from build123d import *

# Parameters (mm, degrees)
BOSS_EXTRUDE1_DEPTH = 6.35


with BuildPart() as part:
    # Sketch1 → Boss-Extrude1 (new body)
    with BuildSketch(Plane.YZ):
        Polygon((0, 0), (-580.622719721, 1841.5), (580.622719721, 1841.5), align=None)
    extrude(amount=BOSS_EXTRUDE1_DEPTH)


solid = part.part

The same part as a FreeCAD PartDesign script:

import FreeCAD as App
import Part
import Sketcher

V = App.Vector
Q = App.Units.Quantity

doc = App.newDocument("Part")
params = doc.addObject("Spreadsheet::Sheet", "Params")
for row, (alias, value) in enumerate([
    ("pad1_length", "0.25 in"),
], start=1):
    params.set(f"A{row}", alias)
    params.set(f"B{row}", "=" + value)
    params.setAlias(f"B{row}", alias)

body = doc.addObject("PartDesign::Body", "Body")

sketch1 = body.newObject("Sketcher::SketchObject", "Sketch")
sketch1.AttachmentSupport = (doc.getObject("YZ_Plane"), [""])
sketch1.MapMode = "FlatFace"
sketch1.addGeometry(Part.LineSegment(V(-581, 1842, 0), V(0, 0, 0)), False)
sketch1.addGeometry(Part.LineSegment(V(0, 0, 0), V(581, 1842, 0)), False)
sketch1.addGeometry(Part.LineSegment(V(581, 1842, 0), V(-581, 1842, 0)), False)
sketch1.addConstraint(Sketcher.Constraint("Coincident", 0, 2, 1, 1))
sketch1.addConstraint(Sketcher.Constraint("Coincident", 1, 2, 2, 1))
sketch1.addConstraint(Sketcher.Constraint("Coincident", 2, 2, 0, 1))
sketch1.addConstraint(Sketcher.Constraint("Horizontal", 2))
sketch1.addConstraint(Sketcher.Constraint("Coincident", 0, 2, -1, 1))
sketch1.addConstraint(Sketcher.Constraint("Equal", 0, 1))
sketch1.addConstraint(Sketcher.Constraint("DistanceY", -1, 1, 1, 2, Q("72.5 in")))
sketch1.addConstraint(Sketcher.Constraint("Angle", 0, Q("-72.5 deg")))
pad1 = body.newObject("PartDesign::Pad", "Pad")
pad1.Profile = sketch1
pad1.setExpression("Length", "Params.pad1_length")

doc.recompute()
